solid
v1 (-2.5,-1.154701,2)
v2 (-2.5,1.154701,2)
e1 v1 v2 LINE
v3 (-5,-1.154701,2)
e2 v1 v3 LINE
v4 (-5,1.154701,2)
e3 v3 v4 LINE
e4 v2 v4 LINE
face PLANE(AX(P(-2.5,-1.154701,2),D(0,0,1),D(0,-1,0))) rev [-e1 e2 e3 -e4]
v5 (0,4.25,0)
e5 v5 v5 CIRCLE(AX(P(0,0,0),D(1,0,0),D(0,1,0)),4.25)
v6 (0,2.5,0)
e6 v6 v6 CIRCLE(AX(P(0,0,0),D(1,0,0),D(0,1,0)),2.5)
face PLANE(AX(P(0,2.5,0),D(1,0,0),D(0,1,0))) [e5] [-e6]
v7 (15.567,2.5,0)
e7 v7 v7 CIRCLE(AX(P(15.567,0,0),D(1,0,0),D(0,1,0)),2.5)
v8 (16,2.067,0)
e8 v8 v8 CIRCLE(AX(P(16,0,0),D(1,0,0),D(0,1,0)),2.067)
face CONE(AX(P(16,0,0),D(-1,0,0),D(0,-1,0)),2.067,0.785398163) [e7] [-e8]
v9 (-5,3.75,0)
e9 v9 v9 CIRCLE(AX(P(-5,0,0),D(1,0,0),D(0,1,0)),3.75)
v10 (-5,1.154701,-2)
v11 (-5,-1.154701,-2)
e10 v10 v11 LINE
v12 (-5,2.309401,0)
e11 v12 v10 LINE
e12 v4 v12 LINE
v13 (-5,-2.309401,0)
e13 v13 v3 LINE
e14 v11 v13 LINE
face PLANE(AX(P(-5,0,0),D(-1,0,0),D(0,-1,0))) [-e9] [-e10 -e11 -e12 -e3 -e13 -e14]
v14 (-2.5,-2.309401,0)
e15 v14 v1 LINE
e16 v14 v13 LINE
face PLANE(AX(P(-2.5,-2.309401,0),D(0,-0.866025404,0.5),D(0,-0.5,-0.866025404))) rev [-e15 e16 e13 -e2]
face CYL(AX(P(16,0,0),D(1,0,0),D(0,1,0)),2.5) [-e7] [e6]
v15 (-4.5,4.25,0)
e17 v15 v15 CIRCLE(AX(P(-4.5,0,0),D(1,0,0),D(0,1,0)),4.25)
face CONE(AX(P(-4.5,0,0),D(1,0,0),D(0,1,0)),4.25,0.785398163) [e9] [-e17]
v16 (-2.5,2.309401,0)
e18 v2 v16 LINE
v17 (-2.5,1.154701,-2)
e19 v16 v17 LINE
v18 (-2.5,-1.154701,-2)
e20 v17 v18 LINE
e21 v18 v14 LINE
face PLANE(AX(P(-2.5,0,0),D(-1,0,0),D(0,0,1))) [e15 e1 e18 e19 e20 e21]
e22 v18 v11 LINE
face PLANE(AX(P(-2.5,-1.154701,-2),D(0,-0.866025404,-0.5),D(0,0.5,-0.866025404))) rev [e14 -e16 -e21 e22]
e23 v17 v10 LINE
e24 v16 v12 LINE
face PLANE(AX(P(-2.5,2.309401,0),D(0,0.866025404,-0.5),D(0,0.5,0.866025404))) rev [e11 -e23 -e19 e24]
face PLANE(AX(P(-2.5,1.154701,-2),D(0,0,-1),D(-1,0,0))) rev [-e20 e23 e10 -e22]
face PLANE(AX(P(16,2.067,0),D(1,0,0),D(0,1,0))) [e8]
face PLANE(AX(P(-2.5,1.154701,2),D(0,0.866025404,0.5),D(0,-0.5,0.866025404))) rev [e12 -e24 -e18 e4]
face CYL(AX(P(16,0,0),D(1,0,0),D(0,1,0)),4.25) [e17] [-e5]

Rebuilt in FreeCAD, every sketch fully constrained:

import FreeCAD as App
import Part
import Sketcher
Q = App.Units.Quantity


def add_polygon(sketch, points):
    """Adds a closed chain of lines whose ends are joined by coincident constraints."""
    first, n = sketch.GeometryCount, len(points)
    for a, b in zip(points, points[1:] + points[:1]):
        sketch.addGeometry(Part.LineSegment(App.Vector(*a, 0), App.Vector(*b, 0)), False)
    for i in range(n):
        sketch.addConstraint(Sketcher.Constraint("Coincident", first + i, 2, first + (i + 1) % n, 1))

doc = App.newDocument("Part")
body = doc.addObject("PartDesign::Body", "Body")

# Sketch on XY plane
sketch1 = doc.addObject("Sketcher::SketchObject", "Sketch")
body.addObject(sketch1)
sketch1.AttachmentSupport = (doc.XY_Plane, [""])
sketch1.MapMode = "FlatFace"
add_polygon(sketch1, [(0, 2.5), (0, 4.2), (-4.5, 4.2), (-5, 3.8), (-5, 0), (16, 0), (16, 2.1), (15.6, 2.5)])  # lines 0-7
sketch1.addConstraint([
    Sketcher.Constraint("Vertical", 0),
    Sketcher.Constraint("Horizontal", 1),
    Sketcher.Constraint("Vertical", 3),
    Sketcher.Constraint("Horizontal", 4),
    Sketcher.Constraint("Vertical", 5),
    Sketcher.Constraint("Horizontal", 7),
    Sketcher.Constraint("PointOnObject", 0, 2, -2),
    Sketcher.Constraint("PointOnObject", 3, 2, -1),
    Sketcher.Constraint("Perpendicular", 2, 6),
    Sketcher.Constraint("DistanceX", 4, 1, 4, 2, Q("21 mm")),
    Sketcher.Constraint("Angle", 2, Q("-135 deg")),
    Sketcher.Constraint("DistanceX", 1, 2, 1, 1, Q("4.5 mm")),
    Sketcher.Constraint("DistanceX", 2, 2, -1, 1, Q("5 mm")),
    Sketcher.Constraint("DistanceY", 0, 1, 0, 2, Q("1.75 mm")),
    Sketcher.Constraint("DistanceY", 3, 2, 3, 1, Q("3.75 mm")),
    Sketcher.Constraint("DistanceX", 7, 2, 7, 1, Q("15.567 mm")),
])
revolution = doc.addObject("PartDesign::Revolution", "Revolution")
body.addObject(revolution)
revolution.Profile = sketch1
revolution.ReferenceAxis = (sketch1, ["H_Axis"])
revolution.Angle = 360

# Sketch on YZ plane
sketch2 = doc.addObject("Sketcher::SketchObject", "Sketch001")
body.addObject(sketch2)
sketch2.AttachmentSupport = (doc.YZ_Plane, [""])
sketch2.MapMode = "FlatFace"
sketch2.AttachmentOffset = App.Placement(App.Vector(0, 0, -5), App.Rotation())
add_polygon(sketch2, [(2.3, 0), (1.2, -2), (-1.2, -2), (-2.3, 0), (-1.2, 2), (1.2, 2)])  # lines 0-5
sketch2.addConstraint([
    Sketcher.Constraint("Horizontal", 1),
    Sketcher.Constraint("Horizontal", 4),
    Sketcher.Constraint("Symmetric", 0, 2, 3, 2, -1, 1),
    Sketcher.Constraint("Symmetric", 2, 2, 5, 2, -1, 1),
    Sketcher.Constraint("PointOnObject", 2, 2, -1),
    Sketcher.Constraint("Parallel", 2, 5),
    Sketcher.Constraint("Vertical", 1, 2, 3, 2),
    Sketcher.Constraint("Angle", 0, Q("-120 deg")),
    Sketcher.Constraint("DistanceY", 0, 2, -1, 1, Q("2 mm")),
    Sketcher.Constraint("DistanceX", 1, 2, 1, 1, Q("2.309401 mm")),
])
pocket1 = doc.addObject("PartDesign::Pocket", "Pocket")
body.addObject(pocket1)
pocket1.Profile = sketch2
pocket1.Length = 2.5
pocket1.Reversed = True

doc.recompute()
